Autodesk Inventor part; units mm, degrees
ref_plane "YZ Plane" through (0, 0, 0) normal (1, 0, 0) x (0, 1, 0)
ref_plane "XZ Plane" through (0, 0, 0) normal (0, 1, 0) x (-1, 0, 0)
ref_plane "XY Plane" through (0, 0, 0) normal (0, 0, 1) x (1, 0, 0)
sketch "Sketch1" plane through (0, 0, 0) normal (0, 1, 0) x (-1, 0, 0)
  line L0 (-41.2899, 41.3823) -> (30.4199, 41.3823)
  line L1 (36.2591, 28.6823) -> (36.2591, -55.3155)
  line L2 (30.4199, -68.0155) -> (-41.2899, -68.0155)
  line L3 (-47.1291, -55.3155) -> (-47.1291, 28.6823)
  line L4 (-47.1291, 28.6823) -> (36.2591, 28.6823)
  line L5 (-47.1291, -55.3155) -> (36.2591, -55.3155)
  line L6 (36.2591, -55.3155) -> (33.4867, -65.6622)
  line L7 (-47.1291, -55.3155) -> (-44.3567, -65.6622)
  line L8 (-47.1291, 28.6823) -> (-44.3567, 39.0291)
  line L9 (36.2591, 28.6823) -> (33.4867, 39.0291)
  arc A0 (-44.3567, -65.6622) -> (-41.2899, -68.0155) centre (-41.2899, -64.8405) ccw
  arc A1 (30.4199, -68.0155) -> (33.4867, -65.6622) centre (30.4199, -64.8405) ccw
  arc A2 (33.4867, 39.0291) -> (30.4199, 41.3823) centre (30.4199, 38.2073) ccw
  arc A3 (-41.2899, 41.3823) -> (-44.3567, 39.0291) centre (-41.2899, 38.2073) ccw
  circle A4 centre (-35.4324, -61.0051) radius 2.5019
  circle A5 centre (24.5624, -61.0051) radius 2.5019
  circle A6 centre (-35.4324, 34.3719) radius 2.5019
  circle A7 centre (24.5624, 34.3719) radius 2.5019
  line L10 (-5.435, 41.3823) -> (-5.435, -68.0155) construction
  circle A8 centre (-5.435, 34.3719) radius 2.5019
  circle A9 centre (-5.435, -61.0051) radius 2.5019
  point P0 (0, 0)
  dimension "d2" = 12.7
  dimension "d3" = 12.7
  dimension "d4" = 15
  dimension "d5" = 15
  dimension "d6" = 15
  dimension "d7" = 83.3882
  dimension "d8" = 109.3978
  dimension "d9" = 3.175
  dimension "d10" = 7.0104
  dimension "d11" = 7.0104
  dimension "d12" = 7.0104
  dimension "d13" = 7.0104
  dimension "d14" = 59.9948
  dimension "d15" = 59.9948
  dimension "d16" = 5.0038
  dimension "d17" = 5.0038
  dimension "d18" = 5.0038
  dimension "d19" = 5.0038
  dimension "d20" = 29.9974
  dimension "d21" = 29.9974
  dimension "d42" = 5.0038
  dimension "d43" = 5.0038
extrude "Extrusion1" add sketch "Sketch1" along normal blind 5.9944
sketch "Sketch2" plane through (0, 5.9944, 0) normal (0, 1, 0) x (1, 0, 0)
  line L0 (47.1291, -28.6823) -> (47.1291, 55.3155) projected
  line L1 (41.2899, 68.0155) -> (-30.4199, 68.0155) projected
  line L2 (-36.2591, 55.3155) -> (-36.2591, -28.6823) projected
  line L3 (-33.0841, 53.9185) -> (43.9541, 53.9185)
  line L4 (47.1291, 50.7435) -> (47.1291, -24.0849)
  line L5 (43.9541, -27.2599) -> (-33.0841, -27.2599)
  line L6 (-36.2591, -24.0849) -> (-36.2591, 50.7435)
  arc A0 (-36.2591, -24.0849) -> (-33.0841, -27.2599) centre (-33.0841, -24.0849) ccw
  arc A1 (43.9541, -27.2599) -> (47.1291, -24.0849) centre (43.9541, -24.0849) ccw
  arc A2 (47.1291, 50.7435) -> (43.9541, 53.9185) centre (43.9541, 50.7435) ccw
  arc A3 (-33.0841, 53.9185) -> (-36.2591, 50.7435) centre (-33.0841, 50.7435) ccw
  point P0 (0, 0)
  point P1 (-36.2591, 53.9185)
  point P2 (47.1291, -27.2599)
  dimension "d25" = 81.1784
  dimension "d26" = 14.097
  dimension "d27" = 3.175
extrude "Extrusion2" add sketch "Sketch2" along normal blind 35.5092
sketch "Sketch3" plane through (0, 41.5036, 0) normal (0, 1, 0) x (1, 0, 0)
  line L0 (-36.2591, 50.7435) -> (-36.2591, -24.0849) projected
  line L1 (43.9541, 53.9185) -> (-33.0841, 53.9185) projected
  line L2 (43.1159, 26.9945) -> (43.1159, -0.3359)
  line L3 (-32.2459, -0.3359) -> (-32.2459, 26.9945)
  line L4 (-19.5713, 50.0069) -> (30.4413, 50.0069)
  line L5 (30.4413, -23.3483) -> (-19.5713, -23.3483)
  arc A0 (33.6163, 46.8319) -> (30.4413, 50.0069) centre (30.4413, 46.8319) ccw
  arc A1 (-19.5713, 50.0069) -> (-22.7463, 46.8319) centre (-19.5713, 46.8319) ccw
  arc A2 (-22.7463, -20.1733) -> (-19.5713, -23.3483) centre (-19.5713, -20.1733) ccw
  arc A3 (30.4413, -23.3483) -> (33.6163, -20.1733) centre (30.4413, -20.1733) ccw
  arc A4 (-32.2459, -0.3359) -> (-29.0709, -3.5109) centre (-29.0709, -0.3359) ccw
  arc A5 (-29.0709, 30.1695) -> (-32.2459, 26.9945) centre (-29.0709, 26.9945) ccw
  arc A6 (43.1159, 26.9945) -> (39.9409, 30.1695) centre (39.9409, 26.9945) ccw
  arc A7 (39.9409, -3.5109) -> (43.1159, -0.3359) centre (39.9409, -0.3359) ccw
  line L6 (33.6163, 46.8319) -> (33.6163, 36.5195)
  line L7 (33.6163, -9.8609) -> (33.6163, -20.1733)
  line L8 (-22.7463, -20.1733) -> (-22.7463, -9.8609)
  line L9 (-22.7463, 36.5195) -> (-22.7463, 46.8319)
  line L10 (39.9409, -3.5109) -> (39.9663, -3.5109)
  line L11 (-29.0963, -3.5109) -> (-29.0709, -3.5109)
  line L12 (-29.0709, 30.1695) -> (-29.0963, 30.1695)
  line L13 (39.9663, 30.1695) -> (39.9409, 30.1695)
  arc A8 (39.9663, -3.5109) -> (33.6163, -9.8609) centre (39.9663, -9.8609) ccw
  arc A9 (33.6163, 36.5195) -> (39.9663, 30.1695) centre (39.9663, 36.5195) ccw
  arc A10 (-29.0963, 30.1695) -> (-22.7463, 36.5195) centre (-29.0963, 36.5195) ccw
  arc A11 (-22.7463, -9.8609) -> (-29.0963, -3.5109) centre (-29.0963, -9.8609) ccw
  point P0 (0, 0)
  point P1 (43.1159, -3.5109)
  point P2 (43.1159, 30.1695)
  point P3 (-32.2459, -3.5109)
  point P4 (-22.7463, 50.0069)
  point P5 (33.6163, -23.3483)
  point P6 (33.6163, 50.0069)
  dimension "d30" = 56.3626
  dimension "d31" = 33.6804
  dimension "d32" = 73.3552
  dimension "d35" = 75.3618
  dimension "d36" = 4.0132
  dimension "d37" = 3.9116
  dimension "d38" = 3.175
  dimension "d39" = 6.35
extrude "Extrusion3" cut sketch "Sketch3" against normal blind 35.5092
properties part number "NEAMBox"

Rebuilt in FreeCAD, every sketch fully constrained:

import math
import FreeCAD as App
import Part
import Sketcher
from FreeCAD import Vector
Q = App.Units.Quantity

doc = App.newDocument("Part")
body = doc.addObject("PartDesign::Body", "Body")

# Sketch on XZ plane
sketch1 = doc.addObject("Sketcher::SketchObject", "Sketch")
body.addObject(sketch1)
sketch1.AttachmentSupport = (doc.XZ_Plane, [""])
sketch1.MapMode = "FlatFace"
sketch1.addGeometry([
    Part.LineSegment(Vector(-30.4, 41.4, 0), Vector(41.3, 41.4, 0)),  # 0
    Part.ArcOfCircle(Part.Circle(Vector(41.3, 38.2, 0), Vector(0, 0, 1), 3.2), math.radians(15), math.radians(90)),  # 1
    Part.LineSegment(Vector(44.4, 39, 0), Vector(47.1, 28.7, 0)),  # 2
    Part.LineSegment(Vector(47.1, 28.7, 0), Vector(47.1, -55.3, 0)),  # 3
    Part.LineSegment(Vector(47.1, -55.3, 0), Vector(44.4, -65.7, 0)),  # 4
    Part.ArcOfCircle(Part.Circle(Vector(41.3, -64.8, 0), Vector(0, 0, 1), 3.2), math.radians(-90), math.radians(-15)),  # 5
    Part.LineSegment(Vector(41.3, -68, 0), Vector(-30.4, -68, 0)),  # 6
    Part.ArcOfCircle(Part.Circle(Vector(-30.4, -64.8, 0), Vector(0, 0, 1), 3.2), math.radians(-165), math.radians(-90)),  # 7
    Part.LineSegment(Vector(-33.5, -65.7, 0), Vector(-36.3, -55.3, 0)),  # 8
    Part.LineSegment(Vector(-36.3, -55.3, 0), Vector(-36.3, 28.7, 0)),  # 9
    Part.LineSegment(Vector(-36.3, 28.7, 0), Vector(-33.5, 39, 0)),  # 10
    Part.ArcOfCircle(Part.Circle(Vector(-30.4, 38.2, 0), Vector(0, 0, 1), 3.2), math.radians(90), math.radians(165)),  # 11
    Part.Circle(Vector(35.4, 34.4, 0), Vector(0, 0, 1), 2.5),  # 12
    Part.Circle(Vector(5.4, 34.4, 0), Vector(0, 0, 1), 2.5),  # 13
    Part.Circle(Vector(-24.6, 34.4, 0), Vector(0, 0, 1), 2.5),  # 14
    Part.Circle(Vector(-24.6, -61, 0), Vector(0, 0, 1), 2.5),  # 15
    Part.Circle(Vector(35.4, -61, 0), Vector(0, 0, 1), 2.5),  # 16
    Part.Circle(Vector(5.4, -61, 0), Vector(0, 0, 1), 2.5),  # 17
], False)
sketch1.addConstraint([
    Sketcher.Constraint("Tangent", 0, 2, 1, 2),
    Sketcher.Constraint("Tangent", 1, 1, 2, 1),
    Sketcher.Constraint("Coincident", 2, 2, 3, 1),
    Sketcher.Constraint("Coincident", 3, 2, 4, 1),
    Sketcher.Constraint("Tangent", 4, 2, 5, 2),
    Sketcher.Constraint("Tangent", 5, 1, 6, 1),
    Sketcher.Constraint("Tangent", 6, 2, 7, 2),
    Sketcher.Constraint("Tangent", 7, 1, 8, 1),
    Sketcher.Constraint("Coincident", 8, 2, 9, 1),
    Sketcher.Constraint("Coincident", 9, 2, 10, 1),
    Sketcher.Constraint("Tangent", 10, 2, 11, 2),
    Sketcher.Constraint("Tangent", 11, 1, 0, 1),
    Sketcher.Constraint("Horizontal", 0),
    Sketcher.Constraint("Vertical", 3),
    Sketcher.Constraint("Horizontal", 6),
    Sketcher.Constraint("Vertical", 9),
    Sketcher.Constraint("Equal", 1, 5),
    Sketcher.Constraint("Equal", 5, 7),
    Sketcher.Constraint("Equal", 7, 11),
    Sketcher.Constraint("Equal", 12, 13),
    Sketcher.Constraint("Equal", 13, 14),
    Sketcher.Constraint("Equal", 14, 15),
    Sketcher.Constraint("Equal", 15, 16),
    Sketcher.Constraint("Equal", 16, 17),
    Sketcher.Constraint("Parallel", 2, 8),
    Sketcher.Constraint("Parallel", 4, 10),
    Sketcher.Constraint("Horizontal", 12, 3, 13, 3),
    Sketcher.Constraint("Horizontal", 13, 3, 14, 3),
    Sketcher.Constraint("Horizontal", 15, 3, 16, 3),
    Sketcher.Constraint("Horizontal", 16, 3, 17, 3),
    Sketcher.Constraint("Horizontal", 4, 2, 7, 1),
    Sketcher.Constraint("Horizontal", 3, 2, 8, 2),
    Sketcher.Constraint("Horizontal", 2, 2, 9, 2),
    Sketcher.Constraint("Vertical", 1, 3, 5, 3),
    Sketcher.Constraint("Vertical", 14, 3, 15, 3),
    Sketcher.Constraint("Vertical", 12, 3, 16, 3),
    Sketcher.Constraint("Vertical", 13, 3, 17, 3),
    Sketcher.Constraint("Diameter", 12, Q("0.197 in")),
    Sketcher.Constraint("Radius", 1, Q("0.125 in")),
    Sketcher.Constraint("DistanceY", 2, 2, 0, 2, Q("0.5 in")),
    Sketcher.Constraint("Angle", 2, Q("-75 deg")),
    Sketcher.Constraint("DistanceX", 13, 3, 12, 3, Q("1.181 in")),
    Sketcher.Constraint("DistanceX", 14, 3, 13, 3, Q("1.181 in")),
    Sketcher.Constraint("DistanceY", 12, 3, 0, 2, Q("0.276 in")),
    Sketcher.Constraint("DistanceY", 5, 1, 16, 3, Q("0.276 in")),
    Sketcher.Constraint("DistanceY", 3, 2, 3, 1, Q("3.307 in")),
    Sketcher.Constraint("DistanceX", 0, 1, 0, 2, Q("71.7098 mm")),
    Sketcher.Constraint("DistanceX", 12, 3, 1, 3, Q("0.2306 in")),
    Sketcher.Constraint("DistanceX", -1, 1, 1, 3, Q("1.6255906 in")),
    Sketcher.Constraint("DistanceY", -1, 1, 1, 3, Q("38.2073 mm")),
])
pad1 = doc.addObject("PartDesign::Pad", "Pad")
body.addObject(pad1)
pad1.Profile = sketch1
pad1.Length = Q("0.236 in")
pad1.Reversed = True

# Sketch on XZ plane
sketch2 = doc.addObject("Sketcher::SketchObject", "Sketch001")
body.addObject(sketch2)
sketch2.AttachmentSupport = (doc.XZ_Plane, [""])
sketch2.MapMode = "FlatFace"
sketch2.AttachmentOffset = App.Placement(Vector(0, 0, -0.236 * 25.4), App.Rotation())
sketch2.addGeometry([
    Part.ArcOfCircle(Part.Circle(Vector(44, 24.1, 0), Vector(0, 0, 1), 3.2), math.radians(0), math.radians(90)),  # 0
    Part.LineSegment(Vector(47.1, 24.1, 0), Vector(47.1, -50.7, 0)),  # 1
    Part.ArcOfCircle(Part.Circle(Vector(44, -50.7, 0), Vector(0, 0, 1), 3.2), math.radians(-90), math.radians(0)),  # 2
    Part.LineSegment(Vector(44, -53.9, 0), Vector(-33.1, -53.9, 0)),  # 3
    Part.ArcOfCircle(Part.Circle(Vector(-33.1, -50.7, 0), Vector(0, 0, 1), 3.2), math.radians(180), math.radians(270)),  # 4
    Part.LineSegment(Vector(-36.3, -50.7, 0), Vector(-36.3, 24.1, 0)),  # 5
    Part.ArcOfCircle(Part.Circle(Vector(-33.1, 24.1, 0), Vector(0, 0, 1), 3.2), math.radians(90), math.radians(180)),  # 6
    Part.LineSegment(Vector(-33.1, 27.3, 0), Vector(44, 27.3, 0)),  # 7
], False)
sketch2.addConstraint([
    Sketcher.Constraint("Tangent", 0, 1, 1, 1),
    Sketcher.Constraint("Tangent", 1, 2, 2, 2),
    Sketcher.Constraint("Tangent", 2, 1, 3, 1),
    Sketcher.Constraint("Tangent", 3, 2, 4, 2),
    Sketcher.Constraint("Tangent", 4, 1, 5, 1),
    Sketcher.Constraint("Tangent", 5, 2, 6, 2),
    Sketcher.Constraint("Tangent", 6, 1, 7, 1),
    Sketcher.Constraint("Tangent", 7, 2, 0, 2),
    Sketcher.Constraint("Vertical", 1),
    Sketcher.Constraint("Horizontal", 3),
    Sketcher.Constraint("Vertical", 5),
    Sketcher.Constraint("Horizontal", 7),
    Sketcher.Constraint("Equal", 0, 2),
    Sketcher.Constraint("Equal", 2, 4),
    Sketcher.Constraint("Equal", 4, 6),
    Sketcher.Constraint("Radius", 0, Q("0.125 in")),
    Sketcher.Constraint("DistanceX", 3, 2, 3, 1, Q("3.033 in")),
    Sketcher.Constraint("DistanceY", 1, 2, 1, 1, Q("2.946 in")),
    Sketcher.Constraint("DistanceX", -1, 1, 0, 3, Q("43.954 mm")),
    Sketcher.Constraint("DistanceY", -1, 1, 0, 3, Q("24.085 mm")),
])
pad2 = doc.addObject("PartDesign::Pad", "Pad001")
body.addObject(pad2)
pad2.Profile = sketch2
pad2.Length = Q("1.398 in")
pad2.Reversed = True

# Sketch on XZ plane
sketch3 = doc.addObject("Sketcher::SketchObject", "Sketch002")
body.addObject(sketch3)
sketch3.AttachmentSupport = (doc.XZ_Plane, [""])
sketch3.MapMode = "FlatFace"
sketch3.AttachmentOffset = App.Placement(Vector(0, 0, -1.634 * 25.4), App.Rotation())
sketch3.addGeometry([
    Part.LineSegment(Vector(43.1159, 0.3359, 0), Vector(43.1159, -26.9945, 0)),  # 0
    Part.ArcOfCircle(Part.Circle(Vector(39.9409, -26.9945, 0), Vector(0, 0, 1), 3.175), math.radians(-90), math.radians(0)),  # 1
    Part.ArcOfCircle(Part.Circle(Vector(39.9663, -36.5195, 0), Vector(0, 0, 1), 6.35), math.radians(90.229182), math.radians(180)),  # 2
    Part.LineSegment(Vector(33.6163, -36.5195, 0), Vector(33.6163, -46.8319, 0)),  # 3
    Part.ArcOfCircle(Part.Circle(Vector(30.4413, -46.8319, 0), Vector(0, 0, 1), 3.175), math.radians(-90), math.radians(0)),  # 4
    Part.LineSegment(Vector(30.4413, -50.0069, 0), Vector(-19.5713, -50.0069, 0)),  # 5
    Part.ArcOfCircle(Part.Circle(Vector(-19.5713, -46.8319, 0), Vector(0, 0, 1), 3.175), math.radians(180), math.radians(270)),  # 6
    Part.LineSegment(Vector(-22.7463, -46.8319, 0), Vector(-22.7463, -36.5195, 0)),  # 7
    Part.ArcOfCircle(Part.Circle(Vector(-29.0963, -36.5195, 0), Vector(0, 0, 1), 6.35), math.radians(0), math.radians(89.770818)),  # 8
    Part.ArcOfCircle(Part.Circle(Vector(-29.0709, -26.9945, 0), Vector(0, 0, 1), 3.175), math.radians(180), math.radians(270)),  # 9
    Part.LineSegment(Vector(-32.2459, -26.9945, 0), Vector(-32.2459, 0.3359, 0)),  # 10
    Part.ArcOfCircle(Part.Circle(Vector(-29.0709, 0.3359, 0), Vector(0, 0, 1), 3.175), math.radians(90), math.radians(180)),  # 11
    Part.ArcOfCircle(Part.Circle(Vector(-29.0963, 9.8609, 0), Vector(0, 0, 1), 6.35), math.radians(-89.770818), math.radians(0)),  # 12
    Part.LineSegment(Vector(-22.7463, 9.8609, 0), Vector(-22.7463, 20.1733, 0)),  # 13
    Part.ArcOfCircle(Part.Circle(Vector(-19.5713, 20.1733, 0), Vector(0, 0, 1), 3.175), math.radians(90), math.radians(180)),  # 14
    Part.LineSegment(Vector(-19.5713, 23.3483, 0), Vector(30.4413, 23.3483, 0)),  # 15
    Part.ArcOfCircle(Part.Circle(Vector(30.4413, 20.1733, 0), Vector(0, 0, 1), 3.175), math.radians(0), math.radians(90)),  # 16
    Part.LineSegment(Vector(33.6163, 20.1733, 0), Vector(33.6163, 9.8609, 0)),  # 17
    Part.ArcOfCircle(Part.Circle(Vector(39.9663, 9.8609, 0), Vector(0, 0, 1), 6.35), math.radians(180), math.radians(269.770818)),  # 18
    Part.ArcOfCircle(Part.Circle(Vector(39.9409, 0.3359, 0), Vector(0, 0, 1), 3.175), math.radians(0), math.radians(90)),  # 19
], False)
sketch3.addConstraint([
    Sketcher.Constraint("Tangent", 0, 2, 1, 2),
    Sketcher.Constraint("Coincident", 1, 1, 2, 1),
    Sketcher.Constraint("Tangent", 2, 2, 3, 1),
    Sketcher.Constraint("Tangent", 3, 2, 4, 2),
    Sketcher.Constraint("Tangent", 4, 1, 5, 1),
    Sketcher.Constraint("Tangent", 5, 2, 6, 2),
    Sketcher.Constraint("Tangent", 6, 1, 7, 1),
    Sketcher.Constraint("Tangent", 7, 2, 8, 1),
    Sketcher.Constraint("Coincident", 8, 2, 9, 2),
    Sketcher.Constraint("Tangent", 9, 1, 10, 1),
    Sketcher.Constraint("Tangent", 10, 2, 11, 2),
    Sketcher.Constraint("Coincident", 11, 1, 12, 1),
    Sketcher.Constraint("Tangent", 12, 2, 13, 1),
    Sketcher.Constraint("Tangent", 13, 2, 14, 2),
    Sketcher.Constraint("Tangent", 14, 1, 15, 1),
    Sketcher.Constraint("Tangent", 15, 2, 16, 2),
    Sketcher.Constraint("Tangent", 16, 1, 17, 1),
    Sketcher.Constraint("Tangent", 17, 2, 18, 1),
    Sketcher.Constraint("Coincident", 18, 2, 19, 2),
    Sketcher.Constraint("Tangent", 19, 1, 0, 1),
    Sketcher.Constraint("Vertical", 0),
    Sketcher.Constraint("Vertical", 3),
    Sketcher.Constraint("Horizontal", 5),
    Sketcher.Constraint("Vertical", 7),
    Sketcher.Constraint("Vertical", 10),
    Sketcher.Constraint("Vertical", 13),
    Sketcher.Constraint("Horizontal", 15),
    Sketcher.Constraint("Vertical", 17),
    Sketcher.Constraint("Equal", 1, 4),
    Sketcher.Constraint("Equal", 4, 6),
    Sketcher.Constraint("Equal", 2, 8),
    Sketcher.Constraint("Equal", 6, 9),
    Sketcher.Constraint("Equal", 9, 11),
    Sketcher.Constraint("Equal", 8, 12),
    Sketcher.Constraint("Equal", 11, 14),
    Sketcher.Constraint("Equal", 14, 16),
    Sketcher.Constraint("Equal", 12, 18),
    Sketcher.Constraint("Equal", 16, 19),
    Sketcher.Constraint("Horizontal", 2, 3, 8, 3),
    Sketcher.Constraint("Horizontal", 1, 3, 9, 3),
    Sketcher.Constraint("Horizontal", 12, 3, 18, 3),
    Sketcher.Constraint("Horizontal", 11, 3, 19, 3),
    Sketcher.Constraint("Vertical", 8, 3, 12, 3),
    Sketcher.Constraint("Vertical", 4, 3, 16, 3),
    Sketcher.Constraint("Vertical", 19, 3, 1, 1),
    Sketcher.Constraint("Vertical", 11, 3, 8, 2),
    Sketcher.Constraint("Vertical", 8, 2, 11, 1),
    Sketcher.Constraint("Equal", 7, 13),
    Sketcher.Constraint("Radius", 2, Q("0.25 in")),
    Sketcher.Constraint("Radius", 1, Q("0.125 in")),
    Sketcher.Constraint("DistanceX", 5, 2, 5, 1, Q("1.969 in")),
    Sketcher.Constraint("DistanceY", 0, 2, 0, 1, Q("1.076 in")),
    Sketcher.Constraint("DistanceY", 3, 2, 3, 1, Q("0.406 in")),
    Sketcher.Constraint("DistanceX", 1, 3, 2, 3, Q("0.001 in")),
    Sketcher.Constraint("DistanceX", -1, 1, 1, 3, Q("39.941 mm")),
    Sketcher.Constraint("DistanceY", 1, 3, -1, 1, Q("26.9945 mm")),
])
pocket1 = doc.addObject("PartDesign::Pocket", "Pocket")
body.addObject(pocket1)
pocket1.Profile = sketch3
pocket1.Length = Q("1.398 in")
pocket1.Reversed = True

doc.recompute()
